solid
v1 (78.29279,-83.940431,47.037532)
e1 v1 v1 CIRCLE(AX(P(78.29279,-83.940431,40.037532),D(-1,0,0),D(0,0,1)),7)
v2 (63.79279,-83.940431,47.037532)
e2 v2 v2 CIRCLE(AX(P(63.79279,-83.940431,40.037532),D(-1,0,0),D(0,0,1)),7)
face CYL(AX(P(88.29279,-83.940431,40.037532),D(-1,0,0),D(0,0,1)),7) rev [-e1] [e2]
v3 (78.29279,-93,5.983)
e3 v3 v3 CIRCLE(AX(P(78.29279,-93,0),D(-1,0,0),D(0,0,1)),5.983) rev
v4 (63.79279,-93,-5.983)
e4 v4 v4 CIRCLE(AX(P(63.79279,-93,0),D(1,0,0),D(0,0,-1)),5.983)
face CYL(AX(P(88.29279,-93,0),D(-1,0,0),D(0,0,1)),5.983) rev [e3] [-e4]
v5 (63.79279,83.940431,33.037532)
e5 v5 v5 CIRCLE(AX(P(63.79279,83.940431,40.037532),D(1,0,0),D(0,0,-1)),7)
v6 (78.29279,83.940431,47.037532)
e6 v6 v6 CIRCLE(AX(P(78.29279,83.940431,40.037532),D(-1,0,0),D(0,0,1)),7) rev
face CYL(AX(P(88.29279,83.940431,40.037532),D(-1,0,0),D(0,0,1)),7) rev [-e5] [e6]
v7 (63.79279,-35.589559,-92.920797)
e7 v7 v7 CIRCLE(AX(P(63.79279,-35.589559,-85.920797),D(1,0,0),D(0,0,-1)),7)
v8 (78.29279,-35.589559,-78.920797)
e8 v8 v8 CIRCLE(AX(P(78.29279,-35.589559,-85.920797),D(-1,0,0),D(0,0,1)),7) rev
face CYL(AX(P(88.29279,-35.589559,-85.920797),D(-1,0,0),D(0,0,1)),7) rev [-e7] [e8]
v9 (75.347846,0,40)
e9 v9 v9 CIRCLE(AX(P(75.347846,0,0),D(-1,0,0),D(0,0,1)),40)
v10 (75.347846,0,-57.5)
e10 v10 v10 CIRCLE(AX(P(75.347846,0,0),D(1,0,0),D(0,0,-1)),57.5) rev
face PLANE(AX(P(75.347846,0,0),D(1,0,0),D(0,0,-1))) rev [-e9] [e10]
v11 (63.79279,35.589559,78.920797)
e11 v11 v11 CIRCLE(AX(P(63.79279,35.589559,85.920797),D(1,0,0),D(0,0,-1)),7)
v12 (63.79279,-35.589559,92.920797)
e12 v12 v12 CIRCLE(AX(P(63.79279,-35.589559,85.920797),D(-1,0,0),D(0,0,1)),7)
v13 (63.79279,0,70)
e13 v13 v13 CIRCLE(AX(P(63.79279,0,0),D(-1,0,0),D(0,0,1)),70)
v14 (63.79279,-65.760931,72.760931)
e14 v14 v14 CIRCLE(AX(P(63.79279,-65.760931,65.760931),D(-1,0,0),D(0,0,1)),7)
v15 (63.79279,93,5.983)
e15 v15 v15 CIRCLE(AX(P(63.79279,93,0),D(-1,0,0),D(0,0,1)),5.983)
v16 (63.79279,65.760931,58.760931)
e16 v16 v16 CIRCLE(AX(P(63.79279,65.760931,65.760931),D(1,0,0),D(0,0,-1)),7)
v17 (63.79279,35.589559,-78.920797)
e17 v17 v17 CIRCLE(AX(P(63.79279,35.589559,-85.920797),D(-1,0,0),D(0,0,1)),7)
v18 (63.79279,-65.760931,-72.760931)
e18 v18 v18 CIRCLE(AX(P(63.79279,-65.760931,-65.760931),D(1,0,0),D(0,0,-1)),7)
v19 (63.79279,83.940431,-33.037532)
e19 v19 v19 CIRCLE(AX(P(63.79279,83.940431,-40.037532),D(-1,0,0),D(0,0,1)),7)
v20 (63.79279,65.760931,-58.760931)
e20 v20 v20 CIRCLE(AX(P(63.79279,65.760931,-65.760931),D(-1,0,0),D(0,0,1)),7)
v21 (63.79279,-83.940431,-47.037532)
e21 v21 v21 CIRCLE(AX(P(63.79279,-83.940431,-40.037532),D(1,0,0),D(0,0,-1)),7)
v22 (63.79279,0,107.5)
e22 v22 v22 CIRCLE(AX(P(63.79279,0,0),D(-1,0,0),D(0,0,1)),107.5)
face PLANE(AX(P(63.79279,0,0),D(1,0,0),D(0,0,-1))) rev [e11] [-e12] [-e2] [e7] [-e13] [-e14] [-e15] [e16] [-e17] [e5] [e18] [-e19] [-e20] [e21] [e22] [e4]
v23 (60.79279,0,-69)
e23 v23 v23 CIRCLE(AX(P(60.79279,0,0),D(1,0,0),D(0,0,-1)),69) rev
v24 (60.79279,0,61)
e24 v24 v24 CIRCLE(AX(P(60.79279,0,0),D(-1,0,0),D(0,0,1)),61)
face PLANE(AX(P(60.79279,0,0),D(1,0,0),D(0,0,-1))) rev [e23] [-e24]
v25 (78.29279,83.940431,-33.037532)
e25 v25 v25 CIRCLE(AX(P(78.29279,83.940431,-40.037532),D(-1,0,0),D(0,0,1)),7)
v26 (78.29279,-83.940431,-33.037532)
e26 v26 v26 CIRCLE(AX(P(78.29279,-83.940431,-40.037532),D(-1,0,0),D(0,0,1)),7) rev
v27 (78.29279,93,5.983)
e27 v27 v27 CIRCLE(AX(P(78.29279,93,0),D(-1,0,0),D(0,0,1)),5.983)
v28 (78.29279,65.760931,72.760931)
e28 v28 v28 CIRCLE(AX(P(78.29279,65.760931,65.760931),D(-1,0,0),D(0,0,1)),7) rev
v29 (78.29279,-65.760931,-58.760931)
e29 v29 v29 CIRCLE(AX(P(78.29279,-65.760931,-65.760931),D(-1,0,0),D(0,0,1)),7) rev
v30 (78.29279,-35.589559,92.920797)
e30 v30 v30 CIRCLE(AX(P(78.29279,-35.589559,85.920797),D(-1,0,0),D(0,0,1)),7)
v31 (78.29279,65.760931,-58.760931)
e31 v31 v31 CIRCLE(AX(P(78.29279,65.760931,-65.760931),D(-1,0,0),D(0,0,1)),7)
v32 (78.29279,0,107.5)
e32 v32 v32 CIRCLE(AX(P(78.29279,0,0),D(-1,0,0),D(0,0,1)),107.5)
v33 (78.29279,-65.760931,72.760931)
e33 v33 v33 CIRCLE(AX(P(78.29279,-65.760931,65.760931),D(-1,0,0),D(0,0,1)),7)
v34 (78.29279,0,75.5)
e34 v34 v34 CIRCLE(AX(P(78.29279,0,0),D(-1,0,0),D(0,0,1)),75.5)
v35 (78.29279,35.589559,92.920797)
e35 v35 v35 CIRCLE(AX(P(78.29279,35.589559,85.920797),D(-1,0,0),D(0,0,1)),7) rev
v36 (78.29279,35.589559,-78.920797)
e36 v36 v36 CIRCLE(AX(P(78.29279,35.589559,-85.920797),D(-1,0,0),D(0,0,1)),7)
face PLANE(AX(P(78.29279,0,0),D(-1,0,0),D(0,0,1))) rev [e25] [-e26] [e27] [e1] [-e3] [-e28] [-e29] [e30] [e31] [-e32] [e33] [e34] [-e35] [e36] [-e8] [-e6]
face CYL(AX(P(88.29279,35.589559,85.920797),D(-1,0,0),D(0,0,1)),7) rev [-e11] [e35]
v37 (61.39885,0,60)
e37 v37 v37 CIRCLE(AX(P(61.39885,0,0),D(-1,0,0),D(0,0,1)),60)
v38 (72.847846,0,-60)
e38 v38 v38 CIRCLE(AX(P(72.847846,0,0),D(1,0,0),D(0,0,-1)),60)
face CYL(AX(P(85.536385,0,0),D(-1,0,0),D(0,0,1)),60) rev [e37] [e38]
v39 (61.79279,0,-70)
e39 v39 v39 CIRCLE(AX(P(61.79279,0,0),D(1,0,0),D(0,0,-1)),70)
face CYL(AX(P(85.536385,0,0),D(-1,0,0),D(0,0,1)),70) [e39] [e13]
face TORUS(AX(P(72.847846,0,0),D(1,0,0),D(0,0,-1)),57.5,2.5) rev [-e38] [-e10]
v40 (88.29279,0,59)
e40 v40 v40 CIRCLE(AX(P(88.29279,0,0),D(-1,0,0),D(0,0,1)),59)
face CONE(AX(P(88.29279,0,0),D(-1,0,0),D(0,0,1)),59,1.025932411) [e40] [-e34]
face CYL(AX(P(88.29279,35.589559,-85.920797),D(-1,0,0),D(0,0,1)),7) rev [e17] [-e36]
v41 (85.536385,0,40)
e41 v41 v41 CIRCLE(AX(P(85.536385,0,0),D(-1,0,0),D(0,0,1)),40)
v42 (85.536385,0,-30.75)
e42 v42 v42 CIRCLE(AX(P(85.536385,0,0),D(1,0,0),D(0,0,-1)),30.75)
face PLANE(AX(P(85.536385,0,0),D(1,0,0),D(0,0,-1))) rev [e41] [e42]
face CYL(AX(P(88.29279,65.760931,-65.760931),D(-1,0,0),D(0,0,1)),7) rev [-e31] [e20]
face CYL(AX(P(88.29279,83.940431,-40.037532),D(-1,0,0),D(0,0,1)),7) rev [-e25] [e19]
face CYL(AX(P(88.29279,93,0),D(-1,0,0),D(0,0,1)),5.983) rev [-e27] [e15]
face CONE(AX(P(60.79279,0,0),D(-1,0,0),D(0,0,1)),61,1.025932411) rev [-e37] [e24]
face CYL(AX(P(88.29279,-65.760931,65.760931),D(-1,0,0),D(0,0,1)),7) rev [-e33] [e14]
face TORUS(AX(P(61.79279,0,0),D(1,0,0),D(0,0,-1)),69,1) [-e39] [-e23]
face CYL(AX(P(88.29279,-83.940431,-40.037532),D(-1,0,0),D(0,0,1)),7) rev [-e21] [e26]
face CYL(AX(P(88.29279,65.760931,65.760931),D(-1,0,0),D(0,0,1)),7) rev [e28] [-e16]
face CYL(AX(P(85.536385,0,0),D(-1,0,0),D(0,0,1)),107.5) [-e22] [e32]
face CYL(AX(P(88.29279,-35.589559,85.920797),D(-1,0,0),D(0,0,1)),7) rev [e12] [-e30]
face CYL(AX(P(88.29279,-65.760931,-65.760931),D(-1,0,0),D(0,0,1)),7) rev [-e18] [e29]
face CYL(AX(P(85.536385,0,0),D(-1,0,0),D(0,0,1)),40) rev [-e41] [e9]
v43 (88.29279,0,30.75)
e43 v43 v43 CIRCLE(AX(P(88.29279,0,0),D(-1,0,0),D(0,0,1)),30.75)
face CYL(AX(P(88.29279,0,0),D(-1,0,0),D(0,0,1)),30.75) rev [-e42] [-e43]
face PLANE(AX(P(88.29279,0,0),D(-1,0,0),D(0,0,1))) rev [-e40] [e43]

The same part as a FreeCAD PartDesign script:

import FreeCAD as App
import Part
import Sketcher

V = App.Vector
Q = App.Units.Quantity


def edges_at(feature, points):
    """Names of the edges that pass closest to the given points."""
    edges = feature.Shape.Edges
    near = lambda p: min(range(len(edges)), key=lambda i: edges[i].distToShape(Part.Vertex(*p))[0])
    return sorted({f"Edge{near(p) + 1}" for p in points})


def add_polygon(sketch, points):
    """Adds a closed chain of lines whose ends are joined by coincident constraints."""
    first, n = sketch.GeometryCount, len(points)
    for a, b in zip(points, points[1:] + points[:1]):
        sketch.addGeometry(Part.LineSegment(App.Vector(*a, 0), App.Vector(*b, 0)), False)
    for i in range(n):
        sketch.addConstraint(Sketcher.Constraint("Coincident", first + i, 2, first + (i + 1) % n, 1))

doc = App.newDocument("Part")
body = doc.addObject("PartDesign::Body", "Body")

# Sketch on XY plane
sketch1 = body.newObject("Sketcher::SketchObject", "Sketch")
sketch1.AttachmentSupport = (doc.getObject("XY_Plane"), [""])
sketch1.MapMode = "FlatFace"
add_polygon(sketch1, [(85.5, 40), (85.5, 0), (88.3, 0), (88.3, 59), (78.3, 75.5), (78.3, 107.5), (63.8, 107.5), (63.8, 70), (60.8, 70), (60.8, 61), (61.4, 60), (75.3, 60), (75.3, 40)])  # lines 0-12
sketch1.addConstraint([
    Sketcher.Constraint("Vertical", 0),
    Sketcher.Constraint("Horizontal", 1),
    Sketcher.Constraint("Vertical", 2),
    Sketcher.Constraint("Vertical", 4),
    Sketcher.Constraint("Horizontal", 5),
    Sketcher.Constraint("Vertical", 6),
    Sketcher.Constraint("Horizontal", 7),
    Sketcher.Constraint("Vertical", 8),
    Sketcher.Constraint("Horizontal", 10),
    Sketcher.Constraint("Vertical", 11),
    Sketcher.Constraint("Horizontal", 12),
    Sketcher.Constraint("PointOnObject", 0, 2, -1),
    Sketcher.Constraint("Parallel", 3, 9),
    Sketcher.Constraint("DistanceX", 7, 2, 7, 1, Q("3 mm")),
    Sketcher.Constraint("DistanceY", 0, 2, 0, 1, Q("40 mm")),
    Sketcher.Constraint("DistanceY", 2, 1, 2, 2, Q("59 mm")),
    Sketcher.Constraint("DistanceY", 4, 1, 4, 2, Q("32 mm")),
    Sketcher.Constraint("DistanceY", 8, 2, 8, 1, Q("9 mm")),
    Sketcher.Constraint("DistanceY", 11, 2, 11, 1, Q("20 mm")),
    Sketcher.Constraint("DistanceX", 5, 2, 5, 1, Q("14.5 mm")),
    Sketcher.Constraint("DistanceY", 6, 2, 6, 1, Q("37.5 mm")),
    Sketcher.Constraint("DistanceY", -1, 1, 6, 2, Q("70 mm")),
    Sketcher.Constraint("DistanceX", 3, 2, 2, 2, Q("10 mm")),
    Sketcher.Constraint("DistanceX", 12, 1, 12, 2, Q("10.188539 mm")),
    Sketcher.Constraint("DistanceX", 1, 1, 1, 2, Q("2.756404 mm")),
    Sketcher.Constraint("DistanceX", -1, 1, 1, 2, Q("88.29279 mm")),
])
revolution = body.newObject("PartDesign::Revolution", "Revolution")
revolution.Profile = sketch1
revolution.ReferenceAxis = (sketch1, ["H_Axis"])
revolution.Angle = 360

# Sketch on YZ plane
sketch2 = body.newObject("Sketcher::SketchObject", "Sketch001")
sketch2.AttachmentSupport = (doc.getObject("YZ_Plane"), [""])
sketch2.MapMode = "FlatFace"
sketch2.AttachmentOffset = App.Placement(V(0, 0, 63.79279), App.Rotation())
sketch2.addGeometry([
    Part.Circle(V(84, -40, 0), V(0, 0, 1), 7),  # 0
    Part.Circle(V(66, -66, 0), V(0, 0, 1), 7),  # 1
    Part.Circle(V(36, -86, 0), V(0, 0, 1), 7),  # 2
    Part.Circle(V(84, 40, 0), V(0, 0, 1), 7),  # 3
    Part.Circle(V(66, 66, 0), V(0, 0, 1), 7),  # 4
    Part.Circle(V(36, 86, 0), V(0, 0, 1), 7),  # 5
    Part.Circle(V(-36, 86, 0), V(0, 0, 1), 7),  # 6
    Part.Circle(V(-66, 66, 0), V(0, 0, 1), 7),  # 7
    Part.Circle(V(-84, 40, 0), V(0, 0, 1), 7),  # 8
    Part.Circle(V(-84, -40, 0), V(0, 0, 1), 7),  # 9
    Part.Circle(V(-66, -66, 0), V(0, 0, 1), 7),  # 10
    Part.Circle(V(-36, -86, 0), V(0, 0, 1), 7),  # 11
    Part.Circle(V(93, 0, 0), V(0, 0, 1), 6),  # 12
    Part.Circle(V(-93, 0, 0), V(0, 0, 1), 6),  # 13
], False)
sketch2.addConstraint([
    Sketcher.Constraint("Equal", 0, 1),
    Sketcher.Constraint("Equal", 1, 2),
    Sketcher.Constraint("Equal", 2, 3),
    Sketcher.Constraint("Equal", 3, 4),
    Sketcher.Constraint("Equal", 4, 5),
    Sketcher.Constraint("Equal", 5, 6),
    Sketcher.Constraint("Equal", 6, 7),
    Sketcher.Constraint("Equal", 7, 8),
    Sketcher.Constraint("Equal", 8, 9),
    Sketcher.Constraint("Equal", 9, 10),
    Sketcher.Constraint("Equal", 10, 11),
    Sketcher.Constraint("Equal", 12, 13),
    Sketcher.Constraint("Symmetric", 2, 3, 6, 3, -1, 1),
    Sketcher.Constraint("Symmetric", 1, 3, 7, 3, -1, 1),
    Sketcher.Constraint("Symmetric", 0, 3, 8, 3, -1, 1),
    Sketcher.Constraint("Symmetric", 3, 3, 9, 3, -1, 1),
    Sketcher.Constraint("Symmetric", 4, 3, 10, 3, -1, 1),
    Sketcher.Constraint("Symmetric", 5, 3, 11, 3, -1, 1),
    Sketcher.Constraint("Symmetric", 12, 3, 13, 3, -1, 1),
    Sketcher.Constraint("Symmetric", 5, 3, 6, 3, -2),
    Sketcher.Constraint("Symmetric", 4, 3, 7, 3, -2),
    Sketcher.Constraint("Symmetric", 3, 3, 8, 3, -2),
    Sketcher.Constraint("PointOnObject", 12, 3, -1),
    Sketcher.Constraint("Diameter", 0, Q("14 mm")),
    Sketcher.Constraint("Diameter", 12, Q("11.966 mm")),
    Sketcher.Constraint("DistanceX", -1, 1, 12, 3, Q("93 mm")),
    Sketcher.Constraint("DistanceX", 1, 3, 0, 3, Q("18.179501 mm")),
    Sketcher.Constraint("DistanceY", 1, 3, 0, 3, Q("25.723399 mm")),
    Sketcher.Constraint("DistanceX", -1, 1, 0, 3, Q("83.940431 mm")),
    Sketcher.Constraint("DistanceY", 1, 3, -1, 1, Q("65.760931 mm")),
    Sketcher.Constraint("DistanceX", -1, 1, 2, 3, Q("35.589559 mm")),
    Sketcher.Constraint("DistanceY", 2, 3, 3, 3, Q("125.958329 mm")),
])
pocket1 = body.newObject("PartDesign::Pocket", "Pocket")
pocket1.Profile = sketch2
pocket1.Type = "ThroughAll"
pocket1.Reversed = True

# Sketch on YZ plane
sketch3 = body.newObject("Sketcher::SketchObject", "Sketch002")
sketch3.AttachmentSupport = (doc.getObject("YZ_Plane"), [""])
sketch3.MapMode = "FlatFace"
sketch3.AttachmentOffset = App.Placement(V(0, 0, 75.347846), App.Rotation())
sketch3.addGeometry(Part.Circle(V(0, 0, 0), V(0, 0, 1), 31), False)
sketch3.addConstraint([
    Sketcher.Constraint("Coincident", 0, 3, -1, 1),
    Sketcher.Constraint("Diameter", 0, Q("61.5 mm")),
])
pocket2 = body.newObject("PartDesign::Pocket", "Pocket001")
pocket2.Profile = sketch3
pocket2.Type = "ThroughAll"
pocket2.Reversed = True
doc.recompute()

fillet = body.newObject("PartDesign::Fillet", "Fillet")
fillet.Base = (pocket2, edges_at(pocket2, [(60.793, 0, -70)]))
fillet.Radius = 1
doc.recompute()

fillet2 = body.newObject("PartDesign::Fillet", "Fillet001")
fillet2.Base = (fillet, edges_at(fillet, [(75.348, 0, -60)]))
fillet2.Radius = 2.5

doc.recompute()
